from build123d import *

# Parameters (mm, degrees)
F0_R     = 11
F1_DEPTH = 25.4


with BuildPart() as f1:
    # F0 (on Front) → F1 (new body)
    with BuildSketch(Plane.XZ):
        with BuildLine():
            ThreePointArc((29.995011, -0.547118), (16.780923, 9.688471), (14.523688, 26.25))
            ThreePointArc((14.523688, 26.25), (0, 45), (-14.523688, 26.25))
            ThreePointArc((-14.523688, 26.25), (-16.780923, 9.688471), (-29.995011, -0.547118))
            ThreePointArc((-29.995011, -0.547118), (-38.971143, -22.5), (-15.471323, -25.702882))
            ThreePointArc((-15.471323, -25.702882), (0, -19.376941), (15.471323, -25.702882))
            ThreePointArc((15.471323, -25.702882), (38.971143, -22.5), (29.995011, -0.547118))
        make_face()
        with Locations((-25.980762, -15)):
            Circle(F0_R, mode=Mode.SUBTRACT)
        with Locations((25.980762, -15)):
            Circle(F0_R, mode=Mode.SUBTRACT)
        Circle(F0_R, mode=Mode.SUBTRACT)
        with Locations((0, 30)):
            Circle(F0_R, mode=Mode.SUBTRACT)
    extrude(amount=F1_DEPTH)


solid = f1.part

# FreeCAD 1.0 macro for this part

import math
import FreeCAD as App
import Part
import Sketcher

doc = App.newDocument("Part")
body = doc.addObject("PartDesign::Body", "Body")

sketch1 = body.newObject("Sketcher::SketchObject", "Sketch")
sketch1.AttachmentSupport = (doc.getObject("XZ_Plane"), [""])
sketch1.MapMode = "FlatFace"
sketch1.addGeometry(Part.ArcOfCircle(Part.Circle(App.Vector(36, 21, 0), App.Vector(0, 0, 1), 22), math.radians(166), math.radians(254)), False)
sketch1.addGeometry(Part.ArcOfCircle(Part.Circle(App.Vector(0, 30, 0), App.Vector(0, 0, 1), 15), math.radians(-14), math.radians(194)), False)
sketch1.addGeometry(Part.ArcOfCircle(Part.Circle(App.Vector(-36, 21, 0), App.Vector(0, 0, 1), 22), math.radians(-74), math.radians(14)), False)
sketch1.addGeometry(Part.ArcOfCircle(Part.Circle(App.Vector(-26, -15, 0), App.Vector(0, 0, 1), 15), math.radians(106), math.radians(314)), False)
sketch1.addGeometry(Part.ArcOfCircle(Part.Circle(App.Vector(0, -41, 0), App.Vector(0, 0, 1), 22), math.radians(46), math.radians(134)), False)
sketch1.addGeometry(Part.ArcOfCircle(Part.Circle(App.Vector(26, -15, 0), App.Vector(0, 0, 1), 15), math.radians(-134), math.radians(74)), False)
sketch1.addGeometry(Part.Circle(App.Vector(-26, -15, 0), App.Vector(0, 0, 1), 11), False)
sketch1.addGeometry(Part.Circle(App.Vector(26, -15, 0), App.Vector(0, 0, 1), 11), False)
sketch1.addGeometry(Part.Circle(App.Vector(0, 0, 0), App.Vector(0, 0, 1), 11), False)
sketch1.addGeometry(Part.Circle(App.Vector(0, 30, 0), App.Vector(0, 0, 1), 11), False)
sketch1.addConstraint(Sketcher.Constraint("Tangent", 0, 1, 1, 1))
sketch1.addConstraint(Sketcher.Constraint("Tangent", 1, 2, 2, 2))
sketch1.addConstraint(Sketcher.Constraint("Tangent", 2, 1, 3, 1))
sketch1.addConstraint(Sketcher.Constraint("Tangent", 3, 2, 4, 2))
sketch1.addConstraint(Sketcher.Constraint("Tangent", 4, 1, 5, 1))
sketch1.addConstraint(Sketcher.Constraint("Tangent", 5, 2, 0, 2))
sketch1.addConstraint(Sketcher.Constraint("Coincident", 8, 3, -1, 1))
sketch1.addConstraint(Sketcher.Constraint("Coincident", 6, 3, 3, 3))
sketch1.addConstraint(Sketcher.Constraint("Coincident", 7, 3, 5, 3))
sketch1.addConstraint(Sketcher.Constraint("Coincident", 9, 3, 1, 3))
sketch1.addConstraint(Sketcher.Constraint("Equal", 0, 2))
sketch1.addConstraint(Sketcher.Constraint("Equal", 1, 3))
sketch1.addConstraint(Sketcher.Constraint("Equal", 2, 4))
sketch1.addConstraint(Sketcher.Constraint("Equal", 3, 5))
sketch1.addConstraint(Sketcher.Constraint("Equal", 6, 7))
sketch1.addConstraint(Sketcher.Constraint("Equal", 7, 8))
sketch1.addConstraint(Sketcher.Constraint("Equal", 8, 9))
sketch1.addConstraint(Sketcher.Constraint("Symmetric", 0, 3, 2, 3, -2))
sketch1.addConstraint(Sketcher.Constraint("PointOnObject", 4, 3, -2))
sketch1.addConstraint(Sketcher.Constraint("Diameter", 6, 22.0))
sketch1.addConstraint(Sketcher.Constraint("Radius", 1, 15.0))
sketch1.addConstraint(Sketcher.Constraint("DistanceY", -1, 1, 1, 3, 30.0))
sketch1.addConstraint(Sketcher.Constraint("DistanceY", 3, 3, -1, 1, 15.0))
sketch1.addConstraint(Sketcher.Constraint("DistanceY", -1, 1, 0, 1, 26.25))
sketch1.addConstraint(Sketcher.Constraint("Radius", 0, 22.082039))
pad1 = body.newObject("PartDesign::Pad", "Pad")
pad1.Profile = sketch1
pad1.Length = 25.4

doc.recompute()
